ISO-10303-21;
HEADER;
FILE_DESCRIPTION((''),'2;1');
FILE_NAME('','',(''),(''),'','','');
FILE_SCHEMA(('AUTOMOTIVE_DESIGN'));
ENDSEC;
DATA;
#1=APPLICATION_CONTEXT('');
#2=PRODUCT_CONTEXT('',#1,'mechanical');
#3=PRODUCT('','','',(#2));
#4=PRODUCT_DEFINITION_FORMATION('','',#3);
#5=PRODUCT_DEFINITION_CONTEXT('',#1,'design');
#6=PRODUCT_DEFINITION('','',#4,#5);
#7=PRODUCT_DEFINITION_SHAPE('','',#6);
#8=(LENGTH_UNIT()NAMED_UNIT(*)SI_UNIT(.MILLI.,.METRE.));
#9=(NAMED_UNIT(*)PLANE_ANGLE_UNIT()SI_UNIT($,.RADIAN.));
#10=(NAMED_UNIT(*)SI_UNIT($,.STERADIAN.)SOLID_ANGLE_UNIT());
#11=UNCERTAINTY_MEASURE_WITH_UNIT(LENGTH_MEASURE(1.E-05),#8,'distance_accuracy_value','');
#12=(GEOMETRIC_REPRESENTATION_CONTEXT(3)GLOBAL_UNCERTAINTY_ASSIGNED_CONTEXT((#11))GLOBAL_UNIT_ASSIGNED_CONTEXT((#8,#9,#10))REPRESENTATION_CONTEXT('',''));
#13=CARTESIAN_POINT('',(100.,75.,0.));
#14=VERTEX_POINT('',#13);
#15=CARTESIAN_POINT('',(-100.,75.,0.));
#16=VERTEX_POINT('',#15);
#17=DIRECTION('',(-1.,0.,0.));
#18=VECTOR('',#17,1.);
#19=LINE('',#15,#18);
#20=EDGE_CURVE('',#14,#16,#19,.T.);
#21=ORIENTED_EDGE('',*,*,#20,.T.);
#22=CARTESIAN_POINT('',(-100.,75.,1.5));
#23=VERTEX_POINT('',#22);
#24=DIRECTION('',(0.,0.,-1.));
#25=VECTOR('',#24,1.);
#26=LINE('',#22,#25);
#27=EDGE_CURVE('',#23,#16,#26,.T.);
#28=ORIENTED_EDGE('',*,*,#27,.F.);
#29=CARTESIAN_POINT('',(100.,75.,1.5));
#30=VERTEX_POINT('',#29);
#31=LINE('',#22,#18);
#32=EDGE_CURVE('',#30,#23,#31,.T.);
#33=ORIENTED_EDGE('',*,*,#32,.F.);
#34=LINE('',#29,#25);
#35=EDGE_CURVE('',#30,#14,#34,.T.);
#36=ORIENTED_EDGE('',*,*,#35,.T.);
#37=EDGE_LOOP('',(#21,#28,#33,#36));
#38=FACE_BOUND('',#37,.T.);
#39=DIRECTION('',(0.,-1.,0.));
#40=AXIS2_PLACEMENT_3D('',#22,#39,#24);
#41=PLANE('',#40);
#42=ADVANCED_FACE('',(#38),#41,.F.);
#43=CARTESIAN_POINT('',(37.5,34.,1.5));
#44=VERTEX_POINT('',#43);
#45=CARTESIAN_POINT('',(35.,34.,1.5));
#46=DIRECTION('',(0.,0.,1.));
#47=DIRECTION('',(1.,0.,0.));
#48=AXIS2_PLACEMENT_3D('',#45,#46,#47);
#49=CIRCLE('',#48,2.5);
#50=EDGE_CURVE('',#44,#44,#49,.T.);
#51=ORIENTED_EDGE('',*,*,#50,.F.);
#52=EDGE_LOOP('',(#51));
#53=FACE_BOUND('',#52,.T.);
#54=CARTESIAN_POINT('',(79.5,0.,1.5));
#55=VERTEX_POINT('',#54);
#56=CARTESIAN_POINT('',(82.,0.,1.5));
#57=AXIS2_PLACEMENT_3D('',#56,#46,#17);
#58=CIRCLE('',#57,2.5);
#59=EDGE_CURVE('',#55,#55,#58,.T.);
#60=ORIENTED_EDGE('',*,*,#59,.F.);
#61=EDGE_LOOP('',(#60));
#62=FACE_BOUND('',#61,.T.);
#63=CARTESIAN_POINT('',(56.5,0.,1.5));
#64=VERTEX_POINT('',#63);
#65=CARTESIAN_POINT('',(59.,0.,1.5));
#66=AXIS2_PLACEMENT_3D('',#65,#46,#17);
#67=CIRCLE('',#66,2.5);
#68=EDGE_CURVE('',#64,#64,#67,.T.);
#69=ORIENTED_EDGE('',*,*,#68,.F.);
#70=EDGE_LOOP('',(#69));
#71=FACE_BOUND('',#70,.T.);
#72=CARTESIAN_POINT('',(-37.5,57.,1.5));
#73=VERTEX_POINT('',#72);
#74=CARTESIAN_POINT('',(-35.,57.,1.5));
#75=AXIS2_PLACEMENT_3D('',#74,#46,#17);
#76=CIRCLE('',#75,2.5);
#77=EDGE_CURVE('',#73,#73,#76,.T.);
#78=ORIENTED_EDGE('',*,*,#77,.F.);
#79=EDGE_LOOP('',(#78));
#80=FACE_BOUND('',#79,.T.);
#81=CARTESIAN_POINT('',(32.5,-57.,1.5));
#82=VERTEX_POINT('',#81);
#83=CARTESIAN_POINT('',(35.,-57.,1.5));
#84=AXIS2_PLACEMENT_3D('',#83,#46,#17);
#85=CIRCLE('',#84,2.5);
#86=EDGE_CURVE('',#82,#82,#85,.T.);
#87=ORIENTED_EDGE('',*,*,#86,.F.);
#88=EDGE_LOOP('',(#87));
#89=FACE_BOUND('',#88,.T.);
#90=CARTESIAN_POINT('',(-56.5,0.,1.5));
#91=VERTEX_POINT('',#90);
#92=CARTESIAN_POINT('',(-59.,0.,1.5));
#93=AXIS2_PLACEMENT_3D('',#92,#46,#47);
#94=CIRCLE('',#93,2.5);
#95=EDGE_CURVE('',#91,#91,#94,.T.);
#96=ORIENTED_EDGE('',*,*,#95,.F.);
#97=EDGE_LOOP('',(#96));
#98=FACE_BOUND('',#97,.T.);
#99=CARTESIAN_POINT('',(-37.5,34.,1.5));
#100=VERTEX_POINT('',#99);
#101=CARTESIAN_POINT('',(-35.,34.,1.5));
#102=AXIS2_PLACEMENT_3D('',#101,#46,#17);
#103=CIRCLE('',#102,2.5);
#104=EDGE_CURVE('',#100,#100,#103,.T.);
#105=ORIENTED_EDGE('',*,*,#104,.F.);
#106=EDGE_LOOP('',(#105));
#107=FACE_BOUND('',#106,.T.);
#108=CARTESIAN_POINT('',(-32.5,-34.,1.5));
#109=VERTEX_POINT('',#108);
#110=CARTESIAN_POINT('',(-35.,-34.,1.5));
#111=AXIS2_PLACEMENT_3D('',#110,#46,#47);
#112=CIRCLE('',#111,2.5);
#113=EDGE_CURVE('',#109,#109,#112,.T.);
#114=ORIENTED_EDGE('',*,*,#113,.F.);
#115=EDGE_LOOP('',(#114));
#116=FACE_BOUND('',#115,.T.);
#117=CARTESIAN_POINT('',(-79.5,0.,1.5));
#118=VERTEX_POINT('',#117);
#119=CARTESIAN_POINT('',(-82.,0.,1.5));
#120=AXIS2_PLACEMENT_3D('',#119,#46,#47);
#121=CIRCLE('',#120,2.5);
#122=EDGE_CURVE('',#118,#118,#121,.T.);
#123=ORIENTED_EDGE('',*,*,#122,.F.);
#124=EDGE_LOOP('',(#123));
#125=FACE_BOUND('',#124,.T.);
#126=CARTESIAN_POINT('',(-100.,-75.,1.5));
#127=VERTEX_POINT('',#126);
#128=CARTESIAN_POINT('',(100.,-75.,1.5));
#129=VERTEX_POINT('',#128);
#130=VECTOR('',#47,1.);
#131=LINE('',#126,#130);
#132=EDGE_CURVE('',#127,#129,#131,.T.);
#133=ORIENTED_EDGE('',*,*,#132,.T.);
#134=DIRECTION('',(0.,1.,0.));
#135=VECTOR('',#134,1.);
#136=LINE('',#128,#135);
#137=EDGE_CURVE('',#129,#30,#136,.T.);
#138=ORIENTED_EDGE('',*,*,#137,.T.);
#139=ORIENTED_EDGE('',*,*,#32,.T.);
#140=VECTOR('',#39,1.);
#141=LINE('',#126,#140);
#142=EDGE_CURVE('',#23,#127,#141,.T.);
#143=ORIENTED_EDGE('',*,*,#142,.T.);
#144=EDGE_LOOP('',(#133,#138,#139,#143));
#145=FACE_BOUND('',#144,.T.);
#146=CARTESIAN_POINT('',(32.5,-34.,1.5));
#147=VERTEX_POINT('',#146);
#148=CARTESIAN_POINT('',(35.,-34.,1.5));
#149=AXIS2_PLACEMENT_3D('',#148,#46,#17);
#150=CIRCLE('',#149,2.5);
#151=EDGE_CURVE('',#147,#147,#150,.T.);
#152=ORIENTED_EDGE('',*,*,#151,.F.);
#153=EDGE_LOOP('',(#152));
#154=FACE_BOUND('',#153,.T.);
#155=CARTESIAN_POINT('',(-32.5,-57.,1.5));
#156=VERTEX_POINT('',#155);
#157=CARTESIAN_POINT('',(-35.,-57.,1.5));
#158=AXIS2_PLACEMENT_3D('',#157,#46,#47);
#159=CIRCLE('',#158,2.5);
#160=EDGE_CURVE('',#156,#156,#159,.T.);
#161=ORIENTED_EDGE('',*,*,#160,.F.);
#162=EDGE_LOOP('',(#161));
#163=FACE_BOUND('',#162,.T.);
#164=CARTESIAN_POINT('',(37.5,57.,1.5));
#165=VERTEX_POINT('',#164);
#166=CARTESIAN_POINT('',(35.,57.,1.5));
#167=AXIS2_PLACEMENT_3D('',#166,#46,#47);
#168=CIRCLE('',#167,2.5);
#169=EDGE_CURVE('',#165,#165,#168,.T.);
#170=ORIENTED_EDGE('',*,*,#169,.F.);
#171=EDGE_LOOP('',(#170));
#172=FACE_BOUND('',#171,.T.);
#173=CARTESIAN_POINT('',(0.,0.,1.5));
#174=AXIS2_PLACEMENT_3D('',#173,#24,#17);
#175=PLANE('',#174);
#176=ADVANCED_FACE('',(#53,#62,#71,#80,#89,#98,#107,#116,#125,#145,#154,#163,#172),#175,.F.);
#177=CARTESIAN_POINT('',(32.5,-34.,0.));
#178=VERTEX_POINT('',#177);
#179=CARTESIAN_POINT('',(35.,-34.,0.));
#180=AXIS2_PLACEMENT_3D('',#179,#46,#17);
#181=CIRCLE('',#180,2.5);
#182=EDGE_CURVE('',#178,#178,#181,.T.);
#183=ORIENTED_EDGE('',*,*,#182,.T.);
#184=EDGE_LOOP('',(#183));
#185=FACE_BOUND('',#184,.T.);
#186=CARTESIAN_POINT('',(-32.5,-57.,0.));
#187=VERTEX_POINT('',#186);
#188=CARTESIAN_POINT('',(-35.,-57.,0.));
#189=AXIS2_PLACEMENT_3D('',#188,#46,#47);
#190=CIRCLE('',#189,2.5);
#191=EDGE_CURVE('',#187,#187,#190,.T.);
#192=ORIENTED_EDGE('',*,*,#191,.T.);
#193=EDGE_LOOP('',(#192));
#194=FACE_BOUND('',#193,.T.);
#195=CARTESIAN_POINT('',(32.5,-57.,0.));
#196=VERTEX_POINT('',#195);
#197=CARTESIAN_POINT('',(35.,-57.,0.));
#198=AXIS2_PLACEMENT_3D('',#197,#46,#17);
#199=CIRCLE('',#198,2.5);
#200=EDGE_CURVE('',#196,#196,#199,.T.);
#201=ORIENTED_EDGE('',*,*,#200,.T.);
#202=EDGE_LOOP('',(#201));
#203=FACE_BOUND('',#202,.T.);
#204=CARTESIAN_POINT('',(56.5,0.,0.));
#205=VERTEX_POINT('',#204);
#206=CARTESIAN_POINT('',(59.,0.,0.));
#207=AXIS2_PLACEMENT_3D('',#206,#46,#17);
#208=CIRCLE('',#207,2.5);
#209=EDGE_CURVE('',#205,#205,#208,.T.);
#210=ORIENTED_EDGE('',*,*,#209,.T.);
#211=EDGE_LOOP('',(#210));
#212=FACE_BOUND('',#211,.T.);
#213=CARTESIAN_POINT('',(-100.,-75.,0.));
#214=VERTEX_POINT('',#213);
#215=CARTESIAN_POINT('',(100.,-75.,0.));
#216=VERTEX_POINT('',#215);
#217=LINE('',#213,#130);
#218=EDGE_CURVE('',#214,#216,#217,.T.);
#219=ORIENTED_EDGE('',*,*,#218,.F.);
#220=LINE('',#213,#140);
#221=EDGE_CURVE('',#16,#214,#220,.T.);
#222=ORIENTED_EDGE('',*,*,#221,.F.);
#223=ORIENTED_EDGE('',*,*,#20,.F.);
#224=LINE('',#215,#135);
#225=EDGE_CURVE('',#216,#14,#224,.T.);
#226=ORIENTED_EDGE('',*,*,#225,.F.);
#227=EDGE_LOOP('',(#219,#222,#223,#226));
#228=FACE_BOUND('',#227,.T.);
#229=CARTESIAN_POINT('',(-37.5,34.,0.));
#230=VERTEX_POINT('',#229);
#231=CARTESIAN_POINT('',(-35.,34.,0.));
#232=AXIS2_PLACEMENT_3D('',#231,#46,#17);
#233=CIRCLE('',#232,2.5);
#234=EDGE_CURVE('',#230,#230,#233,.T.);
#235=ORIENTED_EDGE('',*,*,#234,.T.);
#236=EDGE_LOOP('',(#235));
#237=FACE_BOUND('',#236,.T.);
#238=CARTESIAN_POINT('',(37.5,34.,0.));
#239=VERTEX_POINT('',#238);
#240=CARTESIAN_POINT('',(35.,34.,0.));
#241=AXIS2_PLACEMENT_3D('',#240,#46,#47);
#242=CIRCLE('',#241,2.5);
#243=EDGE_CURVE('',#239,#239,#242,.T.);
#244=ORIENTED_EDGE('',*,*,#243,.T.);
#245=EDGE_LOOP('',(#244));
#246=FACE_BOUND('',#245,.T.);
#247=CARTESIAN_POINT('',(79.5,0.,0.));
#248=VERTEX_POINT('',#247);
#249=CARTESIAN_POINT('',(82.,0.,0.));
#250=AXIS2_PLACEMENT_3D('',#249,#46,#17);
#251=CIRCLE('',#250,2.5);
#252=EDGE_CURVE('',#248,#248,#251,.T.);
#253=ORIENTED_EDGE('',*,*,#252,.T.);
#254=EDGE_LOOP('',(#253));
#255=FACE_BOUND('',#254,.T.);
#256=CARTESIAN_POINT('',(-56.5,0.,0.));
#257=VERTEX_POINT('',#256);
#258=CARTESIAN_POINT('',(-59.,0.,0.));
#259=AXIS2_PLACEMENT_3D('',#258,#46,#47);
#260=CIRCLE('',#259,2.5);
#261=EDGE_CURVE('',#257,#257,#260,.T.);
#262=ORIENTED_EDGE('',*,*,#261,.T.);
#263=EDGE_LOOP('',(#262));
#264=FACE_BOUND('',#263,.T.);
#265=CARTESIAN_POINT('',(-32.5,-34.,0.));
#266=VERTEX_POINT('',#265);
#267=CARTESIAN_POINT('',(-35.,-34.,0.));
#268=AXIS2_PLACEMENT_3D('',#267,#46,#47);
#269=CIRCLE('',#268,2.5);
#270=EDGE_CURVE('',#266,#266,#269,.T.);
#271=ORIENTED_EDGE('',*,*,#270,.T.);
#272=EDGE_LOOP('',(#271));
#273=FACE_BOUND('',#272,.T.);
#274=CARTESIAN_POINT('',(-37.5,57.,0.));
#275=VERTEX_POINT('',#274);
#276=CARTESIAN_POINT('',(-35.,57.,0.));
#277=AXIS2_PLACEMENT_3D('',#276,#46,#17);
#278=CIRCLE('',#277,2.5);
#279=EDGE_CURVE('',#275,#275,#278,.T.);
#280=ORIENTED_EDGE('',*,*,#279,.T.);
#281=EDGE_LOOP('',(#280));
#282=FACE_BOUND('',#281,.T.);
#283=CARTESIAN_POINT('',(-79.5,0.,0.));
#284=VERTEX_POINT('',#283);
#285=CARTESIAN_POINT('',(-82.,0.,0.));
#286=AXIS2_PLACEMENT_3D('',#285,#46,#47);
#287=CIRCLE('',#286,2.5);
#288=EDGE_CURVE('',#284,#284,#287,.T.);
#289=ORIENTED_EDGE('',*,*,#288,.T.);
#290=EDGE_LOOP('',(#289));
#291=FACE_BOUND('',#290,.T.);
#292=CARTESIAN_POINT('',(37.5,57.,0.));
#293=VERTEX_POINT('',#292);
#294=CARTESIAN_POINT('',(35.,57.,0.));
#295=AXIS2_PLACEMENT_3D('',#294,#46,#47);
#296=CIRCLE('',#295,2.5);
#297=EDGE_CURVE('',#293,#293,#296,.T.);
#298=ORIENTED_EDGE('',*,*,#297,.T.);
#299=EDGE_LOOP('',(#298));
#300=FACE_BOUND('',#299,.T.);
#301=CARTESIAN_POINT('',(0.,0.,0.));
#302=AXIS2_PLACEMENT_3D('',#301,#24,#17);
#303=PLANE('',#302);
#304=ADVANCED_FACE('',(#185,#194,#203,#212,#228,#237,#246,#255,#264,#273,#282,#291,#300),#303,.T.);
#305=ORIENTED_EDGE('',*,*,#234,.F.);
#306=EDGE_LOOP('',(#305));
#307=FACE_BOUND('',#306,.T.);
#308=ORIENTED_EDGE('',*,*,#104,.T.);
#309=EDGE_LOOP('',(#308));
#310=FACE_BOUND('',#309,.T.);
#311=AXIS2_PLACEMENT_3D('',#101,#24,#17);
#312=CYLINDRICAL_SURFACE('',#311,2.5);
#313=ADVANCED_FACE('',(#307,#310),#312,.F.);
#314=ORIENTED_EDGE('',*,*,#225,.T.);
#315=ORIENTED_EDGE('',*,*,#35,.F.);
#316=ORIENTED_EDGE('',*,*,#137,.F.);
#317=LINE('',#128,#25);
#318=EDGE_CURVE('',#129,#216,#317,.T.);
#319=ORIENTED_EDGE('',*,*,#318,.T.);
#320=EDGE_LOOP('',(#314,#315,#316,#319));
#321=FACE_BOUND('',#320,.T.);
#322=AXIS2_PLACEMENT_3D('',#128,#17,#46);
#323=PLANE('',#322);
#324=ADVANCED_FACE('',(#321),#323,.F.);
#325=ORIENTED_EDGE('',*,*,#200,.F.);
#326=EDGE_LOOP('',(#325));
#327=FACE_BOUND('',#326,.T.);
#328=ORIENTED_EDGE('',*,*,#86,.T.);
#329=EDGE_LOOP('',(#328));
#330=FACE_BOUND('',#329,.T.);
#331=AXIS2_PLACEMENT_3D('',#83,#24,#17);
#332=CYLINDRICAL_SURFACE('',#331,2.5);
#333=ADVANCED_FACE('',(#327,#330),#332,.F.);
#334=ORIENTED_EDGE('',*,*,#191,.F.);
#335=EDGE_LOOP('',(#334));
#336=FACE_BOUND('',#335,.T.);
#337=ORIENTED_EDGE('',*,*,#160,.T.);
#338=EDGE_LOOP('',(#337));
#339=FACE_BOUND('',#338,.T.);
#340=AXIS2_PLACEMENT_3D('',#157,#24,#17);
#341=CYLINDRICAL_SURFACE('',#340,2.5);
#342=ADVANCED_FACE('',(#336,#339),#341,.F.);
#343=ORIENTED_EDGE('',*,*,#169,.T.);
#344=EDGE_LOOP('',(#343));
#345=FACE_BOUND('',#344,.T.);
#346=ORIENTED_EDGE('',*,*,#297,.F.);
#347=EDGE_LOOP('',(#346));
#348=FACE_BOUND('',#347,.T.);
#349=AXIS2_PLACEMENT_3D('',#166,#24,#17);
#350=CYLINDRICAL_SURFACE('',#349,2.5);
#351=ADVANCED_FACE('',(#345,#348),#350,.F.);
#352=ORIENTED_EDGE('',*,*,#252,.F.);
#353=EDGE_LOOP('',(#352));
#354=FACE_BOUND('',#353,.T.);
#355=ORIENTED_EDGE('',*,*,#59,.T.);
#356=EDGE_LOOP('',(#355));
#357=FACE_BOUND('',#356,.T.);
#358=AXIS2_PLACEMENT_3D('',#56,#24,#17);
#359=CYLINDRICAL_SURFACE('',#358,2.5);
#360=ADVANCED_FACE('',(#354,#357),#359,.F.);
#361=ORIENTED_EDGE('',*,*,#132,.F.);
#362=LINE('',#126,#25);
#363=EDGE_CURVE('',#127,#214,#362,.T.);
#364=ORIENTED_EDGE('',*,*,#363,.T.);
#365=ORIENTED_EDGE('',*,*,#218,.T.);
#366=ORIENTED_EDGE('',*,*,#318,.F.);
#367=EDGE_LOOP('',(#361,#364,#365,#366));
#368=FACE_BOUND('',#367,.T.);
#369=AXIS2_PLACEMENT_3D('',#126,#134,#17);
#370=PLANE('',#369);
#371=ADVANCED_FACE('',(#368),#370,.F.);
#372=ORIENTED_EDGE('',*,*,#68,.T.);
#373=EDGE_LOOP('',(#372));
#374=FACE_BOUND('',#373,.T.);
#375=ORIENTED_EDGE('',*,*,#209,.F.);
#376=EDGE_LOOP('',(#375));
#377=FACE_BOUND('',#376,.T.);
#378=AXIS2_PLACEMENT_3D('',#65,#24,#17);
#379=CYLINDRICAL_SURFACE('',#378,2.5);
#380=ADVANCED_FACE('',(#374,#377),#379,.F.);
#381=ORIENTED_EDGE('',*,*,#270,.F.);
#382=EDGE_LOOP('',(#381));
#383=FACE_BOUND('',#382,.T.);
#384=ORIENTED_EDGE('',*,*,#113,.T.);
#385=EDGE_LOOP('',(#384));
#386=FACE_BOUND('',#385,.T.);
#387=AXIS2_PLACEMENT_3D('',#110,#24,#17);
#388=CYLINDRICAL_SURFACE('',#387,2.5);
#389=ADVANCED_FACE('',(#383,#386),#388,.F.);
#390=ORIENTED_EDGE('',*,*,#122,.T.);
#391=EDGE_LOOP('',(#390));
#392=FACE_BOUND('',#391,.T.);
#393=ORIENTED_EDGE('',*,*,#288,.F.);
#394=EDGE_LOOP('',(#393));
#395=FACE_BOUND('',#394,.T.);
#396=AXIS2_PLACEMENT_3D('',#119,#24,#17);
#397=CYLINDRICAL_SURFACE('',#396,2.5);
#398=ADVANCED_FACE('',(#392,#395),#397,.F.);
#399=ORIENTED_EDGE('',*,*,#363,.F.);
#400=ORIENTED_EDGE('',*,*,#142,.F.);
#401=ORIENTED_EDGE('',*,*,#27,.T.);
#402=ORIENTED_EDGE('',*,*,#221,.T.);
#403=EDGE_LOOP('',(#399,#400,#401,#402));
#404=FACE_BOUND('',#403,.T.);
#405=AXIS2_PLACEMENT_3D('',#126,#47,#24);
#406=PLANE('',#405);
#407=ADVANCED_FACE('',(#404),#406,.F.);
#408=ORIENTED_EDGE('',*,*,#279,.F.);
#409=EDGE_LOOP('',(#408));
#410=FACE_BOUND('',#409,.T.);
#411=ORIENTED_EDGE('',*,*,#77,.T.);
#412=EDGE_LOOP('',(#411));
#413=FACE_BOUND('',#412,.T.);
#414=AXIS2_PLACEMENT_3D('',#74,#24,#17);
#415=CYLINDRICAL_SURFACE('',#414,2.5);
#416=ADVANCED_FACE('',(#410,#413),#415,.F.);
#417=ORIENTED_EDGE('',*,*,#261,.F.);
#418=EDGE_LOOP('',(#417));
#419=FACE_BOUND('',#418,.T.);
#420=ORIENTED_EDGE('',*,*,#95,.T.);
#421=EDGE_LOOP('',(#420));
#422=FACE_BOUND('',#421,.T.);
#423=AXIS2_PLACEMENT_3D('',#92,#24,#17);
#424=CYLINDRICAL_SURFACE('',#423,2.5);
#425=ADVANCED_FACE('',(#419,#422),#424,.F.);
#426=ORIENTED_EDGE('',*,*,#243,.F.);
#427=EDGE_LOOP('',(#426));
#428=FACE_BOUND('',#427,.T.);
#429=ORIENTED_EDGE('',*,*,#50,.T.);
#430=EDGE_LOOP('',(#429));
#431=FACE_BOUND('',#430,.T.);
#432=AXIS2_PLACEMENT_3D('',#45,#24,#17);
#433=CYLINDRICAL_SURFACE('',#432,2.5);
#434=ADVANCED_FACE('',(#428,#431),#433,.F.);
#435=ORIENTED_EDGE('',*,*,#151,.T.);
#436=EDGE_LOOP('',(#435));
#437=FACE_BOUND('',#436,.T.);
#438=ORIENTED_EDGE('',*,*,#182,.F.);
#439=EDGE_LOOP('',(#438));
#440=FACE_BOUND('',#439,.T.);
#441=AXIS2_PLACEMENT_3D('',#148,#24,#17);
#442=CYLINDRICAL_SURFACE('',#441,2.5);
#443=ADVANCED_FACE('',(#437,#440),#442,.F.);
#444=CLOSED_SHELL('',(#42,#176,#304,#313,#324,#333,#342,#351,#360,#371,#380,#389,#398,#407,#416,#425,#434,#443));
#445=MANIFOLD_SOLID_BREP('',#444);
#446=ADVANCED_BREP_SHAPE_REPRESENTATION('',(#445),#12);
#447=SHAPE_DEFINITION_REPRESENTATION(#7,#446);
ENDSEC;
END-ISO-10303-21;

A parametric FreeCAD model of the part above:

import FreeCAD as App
import Part
import Sketcher


def add_polygon(sketch, points):
    """Adds a closed chain of lines whose ends are joined by coincident constraints."""
    first, n = sketch.GeometryCount, len(points)
    for a, b in zip(points, points[1:] + points[:1]):
        sketch.addGeometry(Part.LineSegment(App.Vector(*a, 0), App.Vector(*b, 0)), False)
    for i in range(n):
        sketch.addConstraint(Sketcher.Constraint("Coincident", first + i, 2, first + (i + 1) % n, 1))

doc = App.newDocument("Part")
body = doc.addObject("PartDesign::Body", "Body")

# Sketch on XY plane
sketch1 = body.newObject("Sketcher::SketchObject", "Sketch")
sketch1.AttachmentSupport = (doc.getObject("XY_Plane"), [""])
sketch1.MapMode = "FlatFace"
add_polygon(sketch1, [(-100, 75), (-100, -75), (100, -75), (100, 75)])  # lines 0-3
sketch1.addGeometry(Part.Circle(App.Vector(-35, -57, 0), App.Vector(0, 0, 1), 2.5), False)  # 4
sketch1.addGeometry(Part.Circle(App.Vector(-35, -34, 0), App.Vector(0, 0, 1), 2.5), False)  # 5
sketch1.addGeometry(Part.Circle(App.Vector(35, -57, 0), App.Vector(0, 0, 1), 2.5), False)  # 6
sketch1.addGeometry(Part.Circle(App.Vector(35, -34, 0), App.Vector(0, 0, 1), 2.5), False)  # 7
sketch1.addGeometry(Part.Circle(App.Vector(-82, 0, 0), App.Vector(0, 0, 1), 2.5), False)  # 8
sketch1.addGeometry(Part.Circle(App.Vector(-59, 0, 0), App.Vector(0, 0, 1), 2.5), False)  # 9
sketch1.addGeometry(Part.Circle(App.Vector(-35, 34, 0), App.Vector(0, 0, 1), 2.5), False)  # 10
sketch1.addGeometry(Part.Circle(App.Vector(-35, 57, 0), App.Vector(0, 0, 1), 2.5), False)  # 11
sketch1.addGeometry(Part.Circle(App.Vector(59, 0, 0), App.Vector(0, 0, 1), 2.5), False)  # 12
sketch1.addGeometry(Part.Circle(App.Vector(82, 0, 0), App.Vector(0, 0, 1), 2.5), False)  # 13
sketch1.addGeometry(Part.Circle(App.Vector(35, 34, 0), App.Vector(0, 0, 1), 2.5), False)  # 14
sketch1.addGeometry(Part.Circle(App.Vector(35, 57, 0), App.Vector(0, 0, 1), 2.5), False)  # 15
sketch1.addConstraint(Sketcher.Constraint("Vertical", 0))
sketch1.addConstraint(Sketcher.Constraint("Horizontal", 1))
sketch1.addConstraint(Sketcher.Constraint("Vertical", 2))
sketch1.addConstraint(Sketcher.Constraint("Horizontal", 3))
sketch1.addConstraint(Sketcher.Constraint("Equal", 4, 5))
sketch1.addConstraint(Sketcher.Constraint("Equal", 5, 6))
sketch1.addConstraint(Sketcher.Constraint("Equal", 6, 7))
sketch1.addConstraint(Sketcher.Constraint("Equal", 7, 8))
sketch1.addConstraint(Sketcher.Constraint("Equal", 8, 9))
sketch1.addConstraint(Sketcher.Constraint("Equal", 9, 10))
sketch1.addConstraint(Sketcher.Constraint("Equal", 10, 11))
sketch1.addConstraint(Sketcher.Constraint("Equal", 11, 12))
sketch1.addConstraint(Sketcher.Constraint("Equal", 12, 13))
sketch1.addConstraint(Sketcher.Constraint("Equal", 13, 14))
sketch1.addConstraint(Sketcher.Constraint("Equal", 14, 15))
sketch1.addConstraint(Sketcher.Constraint("Symmetric", 7, 3, 10, 3, -1, 1))
sketch1.addConstraint(Sketcher.Constraint("Symmetric", 6, 3, 11, 3, -1, 1))
sketch1.addConstraint(Sketcher.Constraint("Symmetric", 9, 3, 12, 3, -1, 1))
sketch1.addConstraint(Sketcher.Constraint("Symmetric", 8, 3, 13, 3, -1, 1))
sketch1.addConstraint(Sketcher.Constraint("Symmetric", 5, 3, 14, 3, -1, 1))
sketch1.addConstraint(Sketcher.Constraint("Symmetric", 4, 3, 15, 3, -1, 1))
sketch1.addConstraint(Sketcher.Constraint("Symmetric", 0, 2, 2, 2, -1, 1))
sketch1.addConstraint(Sketcher.Constraint("Symmetric", 4, 3, 6, 3, -2))
sketch1.addConstraint(Sketcher.Constraint("Symmetric", 5, 3, 7, 3, -2))
sketch1.addConstraint(Sketcher.Constraint("PointOnObject", 8, 3, -1))
sketch1.addConstraint(Sketcher.Constraint("PointOnObject", 9, 3, -1))
sketch1.addConstraint(Sketcher.Constraint("Vertical", 4, 3, 5, 3))
sketch1.addConstraint(Sketcher.Constraint("Diameter", 4, 5.0))
sketch1.addConstraint(Sketcher.Constraint("DistanceX", 1, 1, 1, 2, 200.0))
sketch1.addConstraint(Sketcher.Constraint("DistanceY", 0, 2, 0, 1, 150.0))
sketch1.addConstraint(Sketcher.Constraint("DistanceX", 4, 3, -1, 1, 35.0))
sketch1.addConstraint(Sketcher.Constraint("DistanceY", 4, 3, -1, 1, 57.0))
sketch1.addConstraint(Sketcher.Constraint("DistanceY", 5, 3, -1, 1, 34.0))
sketch1.addConstraint(Sketcher.Constraint("DistanceX", 8, 3, -1, 1, 82.0))
sketch1.addConstraint(Sketcher.Constraint("DistanceX", 9, 3, -1, 1, 59.0))
pad1 = body.newObject("PartDesign::Pad", "Pad")
pad1.Profile = sketch1
pad1.Length = 1.5

doc.recompute()
